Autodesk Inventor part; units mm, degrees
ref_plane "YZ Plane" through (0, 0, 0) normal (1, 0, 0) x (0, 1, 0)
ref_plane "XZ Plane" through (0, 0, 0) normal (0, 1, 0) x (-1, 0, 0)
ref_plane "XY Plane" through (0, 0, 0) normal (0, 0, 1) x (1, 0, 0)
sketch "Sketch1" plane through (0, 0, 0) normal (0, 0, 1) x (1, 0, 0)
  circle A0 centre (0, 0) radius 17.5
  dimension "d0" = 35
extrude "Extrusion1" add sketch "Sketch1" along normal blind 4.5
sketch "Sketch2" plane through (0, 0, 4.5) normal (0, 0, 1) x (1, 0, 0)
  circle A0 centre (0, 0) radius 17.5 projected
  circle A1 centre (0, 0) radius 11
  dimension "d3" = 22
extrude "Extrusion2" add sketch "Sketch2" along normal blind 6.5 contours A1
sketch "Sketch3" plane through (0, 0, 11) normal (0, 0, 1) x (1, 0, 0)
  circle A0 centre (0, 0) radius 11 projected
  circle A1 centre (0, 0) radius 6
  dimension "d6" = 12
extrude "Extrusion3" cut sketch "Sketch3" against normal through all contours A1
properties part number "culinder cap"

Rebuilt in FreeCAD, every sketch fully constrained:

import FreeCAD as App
import Part
import Sketcher
Q = App.Units.Quantity

doc = App.newDocument("Part")
body = doc.addObject("PartDesign::Body", "Body")

# Sketch on XY plane
sketch1 = body.newObject("Sketcher::SketchObject", "Sketch")
sketch1.AttachmentSupport = (doc.getObject("XY_Plane"), [""])
sketch1.MapMode = "FlatFace"
sketch1.addGeometry(Part.Circle(App.Vector(0, 0, 0), App.Vector(0, 0, 1), 18), False)
sketch1.addConstraint([
    Sketcher.Constraint("Coincident", 0, 3, -1, 1),
    Sketcher.Constraint("Diameter", 0, Q("35 mm")),
])
pad1 = body.newObject("PartDesign::Pad", "Pad")
pad1.Profile = sketch1
pad1.Length = 4.5

# Sketch on XY plane
sketch2 = body.newObject("Sketcher::SketchObject", "Sketch001")
sketch2.AttachmentSupport = (doc.getObject("XY_Plane"), [""])
sketch2.MapMode = "FlatFace"
sketch2.AttachmentOffset = App.Placement(App.Vector(0, 0, 4.5), App.Rotation())
sketch2.addGeometry(Part.Circle(App.Vector(0, 0, 0), App.Vector(0, 0, 1), 11), False)
sketch2.addConstraint([
    Sketcher.Constraint("Coincident", 0, 3, -1, 1),
    Sketcher.Constraint("Diameter", 0, Q("22 mm")),
])
pad2 = body.newObject("PartDesign::Pad", "Pad001")
pad2.Profile = sketch2
pad2.Length = 6.5

# Sketch on XY plane
sketch3 = body.newObject("Sketcher::SketchObject", "Sketch002")
sketch3.AttachmentSupport = (doc.getObject("XY_Plane"), [""])
sketch3.MapMode = "FlatFace"
sketch3.AttachmentOffset = App.Placement(App.Vector(0, 0, 11), App.Rotation())
sketch3.addGeometry(Part.Circle(App.Vector(0, 0, 0), App.Vector(0, 0, 1), 6), False)
sketch3.addConstraint([
    Sketcher.Constraint("Coincident", 0, 3, -1, 1),
    Sketcher.Constraint("Diameter", 0, Q("12 mm")),
])
pocket1 = body.newObject("PartDesign::Pocket", "Pocket")
pocket1.Profile = sketch3
pocket1.Type = "ThroughAll"

doc.recompute()
